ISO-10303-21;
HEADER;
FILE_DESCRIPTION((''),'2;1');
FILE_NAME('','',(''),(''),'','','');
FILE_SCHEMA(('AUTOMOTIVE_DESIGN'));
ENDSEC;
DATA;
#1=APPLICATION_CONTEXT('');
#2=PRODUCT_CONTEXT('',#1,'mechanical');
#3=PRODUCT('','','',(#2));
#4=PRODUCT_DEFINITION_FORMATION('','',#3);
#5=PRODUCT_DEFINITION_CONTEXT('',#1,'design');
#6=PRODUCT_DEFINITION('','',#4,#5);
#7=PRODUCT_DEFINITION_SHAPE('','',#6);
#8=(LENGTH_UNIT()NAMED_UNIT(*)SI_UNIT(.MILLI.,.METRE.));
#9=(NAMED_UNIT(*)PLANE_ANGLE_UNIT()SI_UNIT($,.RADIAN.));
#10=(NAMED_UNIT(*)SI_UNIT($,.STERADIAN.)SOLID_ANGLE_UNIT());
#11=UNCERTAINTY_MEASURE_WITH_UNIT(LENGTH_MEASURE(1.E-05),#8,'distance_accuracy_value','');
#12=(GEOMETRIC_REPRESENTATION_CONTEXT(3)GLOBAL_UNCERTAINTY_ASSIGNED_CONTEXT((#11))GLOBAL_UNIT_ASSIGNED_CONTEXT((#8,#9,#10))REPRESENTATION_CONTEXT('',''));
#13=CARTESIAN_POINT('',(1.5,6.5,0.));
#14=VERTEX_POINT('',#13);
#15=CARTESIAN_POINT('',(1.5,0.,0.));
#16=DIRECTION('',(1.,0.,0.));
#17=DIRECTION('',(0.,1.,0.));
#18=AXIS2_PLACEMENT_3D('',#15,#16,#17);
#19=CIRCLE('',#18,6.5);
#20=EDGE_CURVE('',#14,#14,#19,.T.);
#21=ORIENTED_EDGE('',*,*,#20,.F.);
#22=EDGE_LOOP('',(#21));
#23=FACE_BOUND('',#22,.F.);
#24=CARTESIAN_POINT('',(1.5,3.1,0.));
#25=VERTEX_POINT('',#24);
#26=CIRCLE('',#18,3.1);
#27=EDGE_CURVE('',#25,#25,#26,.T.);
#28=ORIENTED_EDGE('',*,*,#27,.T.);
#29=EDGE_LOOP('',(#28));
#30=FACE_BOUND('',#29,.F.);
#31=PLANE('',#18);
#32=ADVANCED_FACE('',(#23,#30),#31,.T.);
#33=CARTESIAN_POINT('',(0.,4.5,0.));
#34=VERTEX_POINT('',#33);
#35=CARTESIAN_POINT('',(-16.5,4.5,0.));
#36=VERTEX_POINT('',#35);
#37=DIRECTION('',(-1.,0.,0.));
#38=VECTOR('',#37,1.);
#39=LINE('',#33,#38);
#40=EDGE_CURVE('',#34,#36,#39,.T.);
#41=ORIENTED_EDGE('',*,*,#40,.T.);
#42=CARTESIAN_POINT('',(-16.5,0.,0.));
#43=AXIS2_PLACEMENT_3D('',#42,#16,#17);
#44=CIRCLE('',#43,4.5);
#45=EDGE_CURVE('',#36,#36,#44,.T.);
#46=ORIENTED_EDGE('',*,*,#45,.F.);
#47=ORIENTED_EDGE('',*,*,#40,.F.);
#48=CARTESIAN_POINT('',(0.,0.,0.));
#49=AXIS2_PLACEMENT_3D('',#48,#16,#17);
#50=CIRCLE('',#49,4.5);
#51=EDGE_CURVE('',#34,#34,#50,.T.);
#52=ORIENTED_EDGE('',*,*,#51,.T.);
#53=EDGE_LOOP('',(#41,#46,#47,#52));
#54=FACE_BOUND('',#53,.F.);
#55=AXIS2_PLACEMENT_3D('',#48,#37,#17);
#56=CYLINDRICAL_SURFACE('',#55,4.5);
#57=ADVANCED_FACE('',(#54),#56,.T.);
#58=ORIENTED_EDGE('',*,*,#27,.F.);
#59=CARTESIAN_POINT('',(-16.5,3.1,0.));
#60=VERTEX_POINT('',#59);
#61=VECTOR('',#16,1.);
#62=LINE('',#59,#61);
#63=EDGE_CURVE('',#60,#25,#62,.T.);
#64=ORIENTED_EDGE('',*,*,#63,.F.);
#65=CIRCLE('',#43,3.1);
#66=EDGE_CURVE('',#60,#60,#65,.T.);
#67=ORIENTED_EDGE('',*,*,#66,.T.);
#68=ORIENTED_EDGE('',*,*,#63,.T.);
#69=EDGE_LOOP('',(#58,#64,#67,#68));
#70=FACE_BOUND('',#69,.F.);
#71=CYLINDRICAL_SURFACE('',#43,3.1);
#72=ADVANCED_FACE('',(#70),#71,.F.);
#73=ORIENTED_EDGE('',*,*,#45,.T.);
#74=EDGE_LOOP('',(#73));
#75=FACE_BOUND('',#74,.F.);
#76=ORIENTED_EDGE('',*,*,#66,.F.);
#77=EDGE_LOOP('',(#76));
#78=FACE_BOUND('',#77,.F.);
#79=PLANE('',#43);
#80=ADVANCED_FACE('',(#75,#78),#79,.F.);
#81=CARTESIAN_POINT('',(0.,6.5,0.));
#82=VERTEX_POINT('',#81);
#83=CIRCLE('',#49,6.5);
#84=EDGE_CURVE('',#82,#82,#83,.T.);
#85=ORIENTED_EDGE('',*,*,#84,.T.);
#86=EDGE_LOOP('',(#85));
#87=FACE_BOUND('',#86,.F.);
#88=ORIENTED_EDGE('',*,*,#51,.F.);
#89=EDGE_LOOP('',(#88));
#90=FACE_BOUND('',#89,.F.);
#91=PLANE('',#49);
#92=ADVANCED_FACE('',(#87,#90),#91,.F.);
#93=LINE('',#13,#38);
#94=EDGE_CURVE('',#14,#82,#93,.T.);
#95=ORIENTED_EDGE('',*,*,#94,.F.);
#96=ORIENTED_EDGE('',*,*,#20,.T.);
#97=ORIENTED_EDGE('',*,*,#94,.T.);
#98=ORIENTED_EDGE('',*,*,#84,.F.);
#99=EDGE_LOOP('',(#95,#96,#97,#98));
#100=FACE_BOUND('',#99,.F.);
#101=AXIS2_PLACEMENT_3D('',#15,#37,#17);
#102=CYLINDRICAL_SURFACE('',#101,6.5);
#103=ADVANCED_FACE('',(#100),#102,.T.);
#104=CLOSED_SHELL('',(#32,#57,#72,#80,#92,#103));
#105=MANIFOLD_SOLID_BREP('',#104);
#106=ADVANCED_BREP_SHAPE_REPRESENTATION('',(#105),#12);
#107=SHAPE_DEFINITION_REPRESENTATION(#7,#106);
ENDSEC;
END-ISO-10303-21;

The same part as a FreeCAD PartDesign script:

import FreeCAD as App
import Part
import Sketcher

V = App.Vector

doc = App.newDocument("Part")
body = doc.addObject("PartDesign::Body", "Body")

# Sketch on XY plane
sketch1 = body.newObject("Sketcher::SketchObject", "Sketch")
sketch1.AttachmentSupport = (doc.getObject("XY_Plane"), [""])
sketch1.MapMode = "FlatFace"
sketch1.addGeometry([
    Part.LineSegment(V(0, 4.5, 0), V(-16.5, 4.5, 0)),  # 0
    Part.LineSegment(V(-16.5, 4.5, 0), V(-16.5, 3.1, 0)),  # 1
    Part.LineSegment(V(-16.5, 3.1, 0), V(1.5, 3.1, 0)),  # 2
    Part.LineSegment(V(1.5, 3.1, 0), V(1.5, 6.5, 0)),  # 3
    Part.LineSegment(V(1.5, 6.5, 0), V(0, 6.5, 0)),  # 4
    Part.LineSegment(V(0, 6.5, 0), V(0, 4.5, 0)),  # 5
], False)
sketch1.addConstraint([
    Sketcher.Constraint("Coincident", 0, 2, 1, 1),
    Sketcher.Constraint("Coincident", 1, 2, 2, 1),
    Sketcher.Constraint("Coincident", 2, 2, 3, 1),
    Sketcher.Constraint("Coincident", 3, 2, 4, 1),
    Sketcher.Constraint("Coincident", 4, 2, 5, 1),
    Sketcher.Constraint("Coincident", 5, 2, 0, 1),
    Sketcher.Constraint("Horizontal", 0),
    Sketcher.Constraint("Vertical", 1),
    Sketcher.Constraint("Horizontal", 2),
    Sketcher.Constraint("Vertical", 3),
    Sketcher.Constraint("Horizontal", 4),
    Sketcher.Constraint("Vertical", 5),
    Sketcher.Constraint("PointOnObject", 4, 2, -2),
    Sketcher.Constraint("DistanceX", 2, 1, 2, 2, 18.0),
    Sketcher.Constraint("DistanceY", 5, 2, 5, 1, 2.0),
    Sketcher.Constraint("DistanceX", 0, 2, 0, 1, 16.5),
    Sketcher.Constraint("DistanceY", 1, 2, 1, 1, 1.4),
    Sketcher.Constraint("DistanceY", -1, 1, 0, 2, 4.5),
])
revolution = body.newObject("PartDesign::Revolution", "Revolution")
revolution.Profile = sketch1
revolution.ReferenceAxis = (sketch1, ["H_Axis"])
revolution.Angle = 360

doc.recompute()
